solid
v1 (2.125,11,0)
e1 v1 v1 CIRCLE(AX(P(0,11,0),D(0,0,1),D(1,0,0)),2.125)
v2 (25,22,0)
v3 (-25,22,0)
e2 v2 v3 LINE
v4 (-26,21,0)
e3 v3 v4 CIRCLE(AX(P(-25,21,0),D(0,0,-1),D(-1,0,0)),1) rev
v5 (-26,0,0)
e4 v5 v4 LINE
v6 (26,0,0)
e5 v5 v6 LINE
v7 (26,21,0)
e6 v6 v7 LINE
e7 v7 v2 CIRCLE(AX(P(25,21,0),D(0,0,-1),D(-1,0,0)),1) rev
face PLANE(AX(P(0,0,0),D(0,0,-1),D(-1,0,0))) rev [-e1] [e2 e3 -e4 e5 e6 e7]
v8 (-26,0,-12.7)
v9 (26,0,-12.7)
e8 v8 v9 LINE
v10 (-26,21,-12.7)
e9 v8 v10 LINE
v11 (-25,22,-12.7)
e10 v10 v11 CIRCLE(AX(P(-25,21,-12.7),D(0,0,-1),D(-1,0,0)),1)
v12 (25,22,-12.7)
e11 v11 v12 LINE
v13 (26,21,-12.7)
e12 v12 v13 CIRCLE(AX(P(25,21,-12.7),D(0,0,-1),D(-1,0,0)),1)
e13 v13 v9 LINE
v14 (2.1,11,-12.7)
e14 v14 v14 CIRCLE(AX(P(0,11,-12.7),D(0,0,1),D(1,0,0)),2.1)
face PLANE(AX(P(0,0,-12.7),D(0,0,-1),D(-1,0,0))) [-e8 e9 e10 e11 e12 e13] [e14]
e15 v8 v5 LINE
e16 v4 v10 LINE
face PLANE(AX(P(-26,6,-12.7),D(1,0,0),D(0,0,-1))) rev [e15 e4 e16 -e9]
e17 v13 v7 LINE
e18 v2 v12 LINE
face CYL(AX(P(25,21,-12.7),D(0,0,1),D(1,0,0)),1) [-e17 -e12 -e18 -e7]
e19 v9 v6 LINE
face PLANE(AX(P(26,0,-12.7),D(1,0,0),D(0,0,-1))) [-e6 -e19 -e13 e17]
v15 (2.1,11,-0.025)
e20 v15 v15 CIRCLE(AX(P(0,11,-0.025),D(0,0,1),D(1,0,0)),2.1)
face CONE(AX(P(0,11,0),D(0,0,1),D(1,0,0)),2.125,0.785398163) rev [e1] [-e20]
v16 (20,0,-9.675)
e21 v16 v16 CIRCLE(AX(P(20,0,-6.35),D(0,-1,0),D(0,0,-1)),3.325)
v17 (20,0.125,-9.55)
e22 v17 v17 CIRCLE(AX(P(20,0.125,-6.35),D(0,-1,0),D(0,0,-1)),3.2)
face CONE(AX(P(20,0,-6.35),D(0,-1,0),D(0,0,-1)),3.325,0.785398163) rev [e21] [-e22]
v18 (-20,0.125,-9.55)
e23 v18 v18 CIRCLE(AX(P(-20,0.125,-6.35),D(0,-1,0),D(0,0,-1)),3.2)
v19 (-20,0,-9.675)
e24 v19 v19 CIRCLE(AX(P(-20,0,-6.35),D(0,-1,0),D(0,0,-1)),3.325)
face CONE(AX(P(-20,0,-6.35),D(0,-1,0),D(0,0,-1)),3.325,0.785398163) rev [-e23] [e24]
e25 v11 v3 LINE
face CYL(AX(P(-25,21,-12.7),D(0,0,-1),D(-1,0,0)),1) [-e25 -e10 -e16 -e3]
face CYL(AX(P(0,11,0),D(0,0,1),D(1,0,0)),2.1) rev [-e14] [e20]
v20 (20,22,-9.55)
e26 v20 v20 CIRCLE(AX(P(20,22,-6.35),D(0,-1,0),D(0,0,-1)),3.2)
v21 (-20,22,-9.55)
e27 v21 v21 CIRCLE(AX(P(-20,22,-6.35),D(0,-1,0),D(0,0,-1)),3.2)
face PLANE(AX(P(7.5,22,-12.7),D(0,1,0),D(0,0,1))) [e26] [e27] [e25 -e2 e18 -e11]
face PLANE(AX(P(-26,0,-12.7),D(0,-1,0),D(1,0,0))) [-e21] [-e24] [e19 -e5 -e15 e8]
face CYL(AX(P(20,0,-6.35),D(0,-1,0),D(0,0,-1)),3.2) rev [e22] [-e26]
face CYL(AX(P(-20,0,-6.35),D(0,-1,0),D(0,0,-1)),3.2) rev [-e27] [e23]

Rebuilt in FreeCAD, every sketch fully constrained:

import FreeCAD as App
import Part
import Sketcher
from FreeCAD import Vector


def edges_at(feature, points):
    """Names of the edges that pass closest to the given points."""
    edges = feature.Shape.Edges
    near = lambda p: min(range(len(edges)), key=lambda i: edges[i].distToShape(Part.Vertex(*p))[0])
    return sorted({f"Edge{near(p) + 1}" for p in points})

doc = App.newDocument("Part")
body = doc.addObject("PartDesign::Body", "Body")

# Sketch on XY plane
sketch1 = body.newObject("Sketcher::SketchObject", "Sketch")
sketch1.AttachmentSupport = (doc.getObject("XY_Plane"), [""])
sketch1.MapMode = "FlatFace"
sketch1.addGeometry([
    Part.LineSegment(Vector(-26, 0, 0), Vector(26, 0, 0)),
    Part.LineSegment(Vector(26, 0, 0), Vector(26, 22, 0)),
    Part.LineSegment(Vector(26, 22, 0), Vector(-26, 22, 0)),
    Part.LineSegment(Vector(-26, 22, 0), Vector(-26, 0, 0)),
], False)
sketch1.addConstraint([
    Sketcher.Constraint("Coincident", 0, 2, 1, 1),
    Sketcher.Constraint("Coincident", 1, 2, 2, 1),
    Sketcher.Constraint("Coincident", 2, 2, 3, 1),
    Sketcher.Constraint("Coincident", 3, 2, 0, 1),
    Sketcher.Constraint("Horizontal", 0),
    Sketcher.Constraint("Vertical", 1),
    Sketcher.Constraint("Horizontal", 2),
    Sketcher.Constraint("Vertical", 3),
    Sketcher.Constraint("Symmetric", 0, 2, 3, 2, -1, 1),
    Sketcher.Constraint("DistanceX", 0, 1, 0, 2, 52.0),
    Sketcher.Constraint("DistanceY", 1, 1, 1, 2, 22.0),
])
pad1 = body.newObject("PartDesign::Pad", "Pad")
pad1.Profile = sketch1
pad1.Length = 12.7
pad1.Reversed = True

# Sketch on XY plane
sketch2 = body.newObject("Sketcher::SketchObject", "Sketch001")
sketch2.AttachmentSupport = (doc.getObject("XY_Plane"), [""])
sketch2.MapMode = "FlatFace"
sketch2.addGeometry(Part.Circle(Vector(0, 11, 0), Vector(0, 0, 1), 2.1), False)
sketch2.addConstraint([
    Sketcher.Constraint("PointOnObject", 0, 3, -2),
    Sketcher.Constraint("Diameter", 0, 4.2),
    Sketcher.Constraint("DistanceY", -1, 1, 0, 3, 11.0),
])
doc.recompute()
hole = body.newObject("PartDesign::Hole", "Hole")
hole.Profile = sketch2
hole.ThreadType = "None"
hole.Diameter = 4.2
hole.DepthType = "ThroughAll"
hole.HoleCutType = "Countersink"
hole.HoleCutDiameter = 4.25
hole.HoleCutCountersinkAngle = 90

# Sketch on XZ plane
sketch3 = body.newObject("Sketcher::SketchObject", "Sketch002")
sketch3.AttachmentSupport = (doc.getObject("XZ_Plane"), [""])
sketch3.MapMode = "FlatFace"
sketch3.addGeometry([
    Part.Circle(Vector(-20, -6.35, 0), Vector(0, 0, 1), 3.2),
    Part.Circle(Vector(20, -6.35, 0), Vector(0, 0, 1), 3.2),
], False)
sketch3.addConstraint([
    Sketcher.Constraint("Equal", 0, 1),
    Sketcher.Constraint("Symmetric", 0, 3, 1, 3, -2),
    Sketcher.Constraint("Diameter", 0, 6.4),
    Sketcher.Constraint("DistanceX", 0, 3, -1, 1, 20.0),
    Sketcher.Constraint("DistanceY", 0, 3, -1, 1, 6.35),
])
doc.recompute()
hole2 = body.newObject("PartDesign::Hole", "Hole001")
hole2.Profile = sketch3
hole2.ThreadType = "None"
hole2.Diameter = 6.4
hole2.DepthType = "ThroughAll"
hole2.HoleCutType = "Countersink"
hole2.HoleCutDiameter = 6.65
hole2.HoleCutCountersinkAngle = 90
doc.recompute()

fillet = body.newObject("PartDesign::Fillet", "Fillet")
fillet.Base = (hole2, edges_at(hole2, [(-26, 22, -6.35), (26, 22, -6.35)]))
fillet.Radius = 1

doc.recompute()
